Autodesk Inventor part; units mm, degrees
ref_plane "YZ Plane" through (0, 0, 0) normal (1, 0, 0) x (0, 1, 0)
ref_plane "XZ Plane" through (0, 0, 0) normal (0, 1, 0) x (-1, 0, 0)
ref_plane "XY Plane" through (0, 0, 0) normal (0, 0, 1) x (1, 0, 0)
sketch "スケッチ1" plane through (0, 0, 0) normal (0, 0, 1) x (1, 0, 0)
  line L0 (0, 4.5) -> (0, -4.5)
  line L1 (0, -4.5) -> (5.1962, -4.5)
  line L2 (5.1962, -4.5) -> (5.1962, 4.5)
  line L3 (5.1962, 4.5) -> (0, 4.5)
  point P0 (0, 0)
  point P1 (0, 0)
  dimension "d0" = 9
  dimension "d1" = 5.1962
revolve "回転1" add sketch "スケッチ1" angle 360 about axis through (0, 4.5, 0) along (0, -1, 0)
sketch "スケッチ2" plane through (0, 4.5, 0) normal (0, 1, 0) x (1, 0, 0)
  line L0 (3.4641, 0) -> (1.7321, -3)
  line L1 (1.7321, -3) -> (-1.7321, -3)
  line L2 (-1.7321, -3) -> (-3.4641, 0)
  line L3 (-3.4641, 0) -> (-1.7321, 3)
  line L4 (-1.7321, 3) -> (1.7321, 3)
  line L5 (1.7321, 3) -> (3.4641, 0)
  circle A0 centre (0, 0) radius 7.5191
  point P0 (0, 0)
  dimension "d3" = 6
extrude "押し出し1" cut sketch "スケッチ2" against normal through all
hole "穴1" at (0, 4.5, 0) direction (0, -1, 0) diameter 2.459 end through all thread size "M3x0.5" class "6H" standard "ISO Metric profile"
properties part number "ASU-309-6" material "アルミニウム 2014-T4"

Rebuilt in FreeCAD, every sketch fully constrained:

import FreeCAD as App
import Part
import Sketcher

V = App.Vector
Q = App.Units.Quantity


def add_polygon(sketch, points):
    """Adds a closed chain of lines whose ends are joined by coincident constraints."""
    first, n = sketch.GeometryCount, len(points)
    for a, b in zip(points, points[1:] + points[:1]):
        sketch.addGeometry(Part.LineSegment(App.Vector(*a, 0), App.Vector(*b, 0)), False)
    for i in range(n):
        sketch.addConstraint(Sketcher.Constraint("Coincident", first + i, 2, first + (i + 1) % n, 1))

doc = App.newDocument("Part")
body = doc.addObject("PartDesign::Body", "Body")

sketch1 = body.newObject("Sketcher::SketchObject", "Sketch")
sketch1.AttachmentSupport = (doc.getObject("XY_Plane"), [""])
sketch1.MapMode = "FlatFace"
add_polygon(sketch1, [(5.1962, 4.5), (0, 4.5), (0, -4.5), (5.1962, -4.5)])
sketch1.addConstraint(Sketcher.Constraint("Horizontal", 0))
sketch1.addConstraint(Sketcher.Constraint("Vertical", 1))
sketch1.addConstraint(Sketcher.Constraint("Horizontal", 2))
sketch1.addConstraint(Sketcher.Constraint("Vertical", 3))
sketch1.addConstraint(Sketcher.Constraint("Symmetric", 0, 2, 1, 2, -1, 1))
sketch1.addConstraint(Sketcher.Constraint("DistanceY", 1, 2, 1, 1, 9.0))
sketch1.addConstraint(Sketcher.Constraint("DistanceX", 0, 2, 0, 1, 5.1962))
revolution = body.newObject("PartDesign::Revolution", "Revolution")
revolution.Profile = sketch1
revolution.ReferenceAxis = (sketch1, ["V_Axis"])
revolution.Angle = 360

sketch2 = body.newObject("Sketcher::SketchObject", "Sketch001")
sketch2.AttachmentSupport = (doc.getObject("XZ_Plane"), [""])
sketch2.MapMode = "FlatFace"
sketch2.AttachmentOffset = App.Placement(V(0, 0, -4.5), App.Rotation())
sketch2.addGeometry(Part.Circle(V(0, 0, 0), V(0, 0, 1), 7.5191), False)
add_polygon(sketch2, [(1.7321, -3), (3.4641, 0), (1.7321, 3), (-1.7321, 3), (-3.4641, 0), (-1.7321, -3)])
sketch2.addConstraint(Sketcher.Constraint("Horizontal", 3))
sketch2.addConstraint(Sketcher.Constraint("Horizontal", 6))
sketch2.addConstraint(Sketcher.Constraint("Coincident", 0, 3, -1, 1))
sketch2.addConstraint(Sketcher.Constraint("Symmetric", 1, 2, 4, 2, -1, 1))
sketch2.addConstraint(Sketcher.Constraint("Symmetric", 2, 2, 5, 2, -1, 1))
sketch2.addConstraint(Sketcher.Constraint("PointOnObject", 1, 2, -1))
sketch2.addConstraint(Sketcher.Constraint("Parallel", 1, 4))
sketch2.addConstraint(Sketcher.Constraint("Vertical", 3, 2, 5, 2))
sketch2.addConstraint(Sketcher.Constraint("DistanceY", 5, 2, 3, 2, 6.0))
sketch2.addConstraint(Sketcher.Constraint("Angle", 1, Q("60.0007 deg")))
sketch2.addConstraint(Sketcher.Constraint("Diameter", 0, 15.0382))
sketch2.addConstraint(Sketcher.Constraint("DistanceX", 3, 2, 3, 1, 3.4642))
pocket1 = body.newObject("PartDesign::Pocket", "Pocket")
pocket1.Profile = sketch2
pocket1.Type = "ThroughAll"
pocket1.Reversed = True

sketch3 = body.newObject("Sketcher::SketchObject", "Sketch002")
sketch3.AttachmentSupport = (doc.getObject("XZ_Plane"), [""])
sketch3.MapMode = "FlatFace"
sketch3.AttachmentOffset = App.Placement(V(0, 0, -4.5), App.Rotation())
sketch3.addGeometry(Part.Circle(V(0, 0, 0), V(0, 0, 1), 1.2295), False)
sketch3.addConstraint(Sketcher.Constraint("Coincident", 0, 3, -1, 1))
sketch3.addConstraint(Sketcher.Constraint("Diameter", 0, 2.459))
doc.recompute()
hole = body.newObject("PartDesign::Hole", "Hole")
hole.Profile = sketch3
hole.ThreadType = "None"
hole.Diameter = 2.459
hole.DepthType = "ThroughAll"
hole.Reversed = True

doc.recompute()
